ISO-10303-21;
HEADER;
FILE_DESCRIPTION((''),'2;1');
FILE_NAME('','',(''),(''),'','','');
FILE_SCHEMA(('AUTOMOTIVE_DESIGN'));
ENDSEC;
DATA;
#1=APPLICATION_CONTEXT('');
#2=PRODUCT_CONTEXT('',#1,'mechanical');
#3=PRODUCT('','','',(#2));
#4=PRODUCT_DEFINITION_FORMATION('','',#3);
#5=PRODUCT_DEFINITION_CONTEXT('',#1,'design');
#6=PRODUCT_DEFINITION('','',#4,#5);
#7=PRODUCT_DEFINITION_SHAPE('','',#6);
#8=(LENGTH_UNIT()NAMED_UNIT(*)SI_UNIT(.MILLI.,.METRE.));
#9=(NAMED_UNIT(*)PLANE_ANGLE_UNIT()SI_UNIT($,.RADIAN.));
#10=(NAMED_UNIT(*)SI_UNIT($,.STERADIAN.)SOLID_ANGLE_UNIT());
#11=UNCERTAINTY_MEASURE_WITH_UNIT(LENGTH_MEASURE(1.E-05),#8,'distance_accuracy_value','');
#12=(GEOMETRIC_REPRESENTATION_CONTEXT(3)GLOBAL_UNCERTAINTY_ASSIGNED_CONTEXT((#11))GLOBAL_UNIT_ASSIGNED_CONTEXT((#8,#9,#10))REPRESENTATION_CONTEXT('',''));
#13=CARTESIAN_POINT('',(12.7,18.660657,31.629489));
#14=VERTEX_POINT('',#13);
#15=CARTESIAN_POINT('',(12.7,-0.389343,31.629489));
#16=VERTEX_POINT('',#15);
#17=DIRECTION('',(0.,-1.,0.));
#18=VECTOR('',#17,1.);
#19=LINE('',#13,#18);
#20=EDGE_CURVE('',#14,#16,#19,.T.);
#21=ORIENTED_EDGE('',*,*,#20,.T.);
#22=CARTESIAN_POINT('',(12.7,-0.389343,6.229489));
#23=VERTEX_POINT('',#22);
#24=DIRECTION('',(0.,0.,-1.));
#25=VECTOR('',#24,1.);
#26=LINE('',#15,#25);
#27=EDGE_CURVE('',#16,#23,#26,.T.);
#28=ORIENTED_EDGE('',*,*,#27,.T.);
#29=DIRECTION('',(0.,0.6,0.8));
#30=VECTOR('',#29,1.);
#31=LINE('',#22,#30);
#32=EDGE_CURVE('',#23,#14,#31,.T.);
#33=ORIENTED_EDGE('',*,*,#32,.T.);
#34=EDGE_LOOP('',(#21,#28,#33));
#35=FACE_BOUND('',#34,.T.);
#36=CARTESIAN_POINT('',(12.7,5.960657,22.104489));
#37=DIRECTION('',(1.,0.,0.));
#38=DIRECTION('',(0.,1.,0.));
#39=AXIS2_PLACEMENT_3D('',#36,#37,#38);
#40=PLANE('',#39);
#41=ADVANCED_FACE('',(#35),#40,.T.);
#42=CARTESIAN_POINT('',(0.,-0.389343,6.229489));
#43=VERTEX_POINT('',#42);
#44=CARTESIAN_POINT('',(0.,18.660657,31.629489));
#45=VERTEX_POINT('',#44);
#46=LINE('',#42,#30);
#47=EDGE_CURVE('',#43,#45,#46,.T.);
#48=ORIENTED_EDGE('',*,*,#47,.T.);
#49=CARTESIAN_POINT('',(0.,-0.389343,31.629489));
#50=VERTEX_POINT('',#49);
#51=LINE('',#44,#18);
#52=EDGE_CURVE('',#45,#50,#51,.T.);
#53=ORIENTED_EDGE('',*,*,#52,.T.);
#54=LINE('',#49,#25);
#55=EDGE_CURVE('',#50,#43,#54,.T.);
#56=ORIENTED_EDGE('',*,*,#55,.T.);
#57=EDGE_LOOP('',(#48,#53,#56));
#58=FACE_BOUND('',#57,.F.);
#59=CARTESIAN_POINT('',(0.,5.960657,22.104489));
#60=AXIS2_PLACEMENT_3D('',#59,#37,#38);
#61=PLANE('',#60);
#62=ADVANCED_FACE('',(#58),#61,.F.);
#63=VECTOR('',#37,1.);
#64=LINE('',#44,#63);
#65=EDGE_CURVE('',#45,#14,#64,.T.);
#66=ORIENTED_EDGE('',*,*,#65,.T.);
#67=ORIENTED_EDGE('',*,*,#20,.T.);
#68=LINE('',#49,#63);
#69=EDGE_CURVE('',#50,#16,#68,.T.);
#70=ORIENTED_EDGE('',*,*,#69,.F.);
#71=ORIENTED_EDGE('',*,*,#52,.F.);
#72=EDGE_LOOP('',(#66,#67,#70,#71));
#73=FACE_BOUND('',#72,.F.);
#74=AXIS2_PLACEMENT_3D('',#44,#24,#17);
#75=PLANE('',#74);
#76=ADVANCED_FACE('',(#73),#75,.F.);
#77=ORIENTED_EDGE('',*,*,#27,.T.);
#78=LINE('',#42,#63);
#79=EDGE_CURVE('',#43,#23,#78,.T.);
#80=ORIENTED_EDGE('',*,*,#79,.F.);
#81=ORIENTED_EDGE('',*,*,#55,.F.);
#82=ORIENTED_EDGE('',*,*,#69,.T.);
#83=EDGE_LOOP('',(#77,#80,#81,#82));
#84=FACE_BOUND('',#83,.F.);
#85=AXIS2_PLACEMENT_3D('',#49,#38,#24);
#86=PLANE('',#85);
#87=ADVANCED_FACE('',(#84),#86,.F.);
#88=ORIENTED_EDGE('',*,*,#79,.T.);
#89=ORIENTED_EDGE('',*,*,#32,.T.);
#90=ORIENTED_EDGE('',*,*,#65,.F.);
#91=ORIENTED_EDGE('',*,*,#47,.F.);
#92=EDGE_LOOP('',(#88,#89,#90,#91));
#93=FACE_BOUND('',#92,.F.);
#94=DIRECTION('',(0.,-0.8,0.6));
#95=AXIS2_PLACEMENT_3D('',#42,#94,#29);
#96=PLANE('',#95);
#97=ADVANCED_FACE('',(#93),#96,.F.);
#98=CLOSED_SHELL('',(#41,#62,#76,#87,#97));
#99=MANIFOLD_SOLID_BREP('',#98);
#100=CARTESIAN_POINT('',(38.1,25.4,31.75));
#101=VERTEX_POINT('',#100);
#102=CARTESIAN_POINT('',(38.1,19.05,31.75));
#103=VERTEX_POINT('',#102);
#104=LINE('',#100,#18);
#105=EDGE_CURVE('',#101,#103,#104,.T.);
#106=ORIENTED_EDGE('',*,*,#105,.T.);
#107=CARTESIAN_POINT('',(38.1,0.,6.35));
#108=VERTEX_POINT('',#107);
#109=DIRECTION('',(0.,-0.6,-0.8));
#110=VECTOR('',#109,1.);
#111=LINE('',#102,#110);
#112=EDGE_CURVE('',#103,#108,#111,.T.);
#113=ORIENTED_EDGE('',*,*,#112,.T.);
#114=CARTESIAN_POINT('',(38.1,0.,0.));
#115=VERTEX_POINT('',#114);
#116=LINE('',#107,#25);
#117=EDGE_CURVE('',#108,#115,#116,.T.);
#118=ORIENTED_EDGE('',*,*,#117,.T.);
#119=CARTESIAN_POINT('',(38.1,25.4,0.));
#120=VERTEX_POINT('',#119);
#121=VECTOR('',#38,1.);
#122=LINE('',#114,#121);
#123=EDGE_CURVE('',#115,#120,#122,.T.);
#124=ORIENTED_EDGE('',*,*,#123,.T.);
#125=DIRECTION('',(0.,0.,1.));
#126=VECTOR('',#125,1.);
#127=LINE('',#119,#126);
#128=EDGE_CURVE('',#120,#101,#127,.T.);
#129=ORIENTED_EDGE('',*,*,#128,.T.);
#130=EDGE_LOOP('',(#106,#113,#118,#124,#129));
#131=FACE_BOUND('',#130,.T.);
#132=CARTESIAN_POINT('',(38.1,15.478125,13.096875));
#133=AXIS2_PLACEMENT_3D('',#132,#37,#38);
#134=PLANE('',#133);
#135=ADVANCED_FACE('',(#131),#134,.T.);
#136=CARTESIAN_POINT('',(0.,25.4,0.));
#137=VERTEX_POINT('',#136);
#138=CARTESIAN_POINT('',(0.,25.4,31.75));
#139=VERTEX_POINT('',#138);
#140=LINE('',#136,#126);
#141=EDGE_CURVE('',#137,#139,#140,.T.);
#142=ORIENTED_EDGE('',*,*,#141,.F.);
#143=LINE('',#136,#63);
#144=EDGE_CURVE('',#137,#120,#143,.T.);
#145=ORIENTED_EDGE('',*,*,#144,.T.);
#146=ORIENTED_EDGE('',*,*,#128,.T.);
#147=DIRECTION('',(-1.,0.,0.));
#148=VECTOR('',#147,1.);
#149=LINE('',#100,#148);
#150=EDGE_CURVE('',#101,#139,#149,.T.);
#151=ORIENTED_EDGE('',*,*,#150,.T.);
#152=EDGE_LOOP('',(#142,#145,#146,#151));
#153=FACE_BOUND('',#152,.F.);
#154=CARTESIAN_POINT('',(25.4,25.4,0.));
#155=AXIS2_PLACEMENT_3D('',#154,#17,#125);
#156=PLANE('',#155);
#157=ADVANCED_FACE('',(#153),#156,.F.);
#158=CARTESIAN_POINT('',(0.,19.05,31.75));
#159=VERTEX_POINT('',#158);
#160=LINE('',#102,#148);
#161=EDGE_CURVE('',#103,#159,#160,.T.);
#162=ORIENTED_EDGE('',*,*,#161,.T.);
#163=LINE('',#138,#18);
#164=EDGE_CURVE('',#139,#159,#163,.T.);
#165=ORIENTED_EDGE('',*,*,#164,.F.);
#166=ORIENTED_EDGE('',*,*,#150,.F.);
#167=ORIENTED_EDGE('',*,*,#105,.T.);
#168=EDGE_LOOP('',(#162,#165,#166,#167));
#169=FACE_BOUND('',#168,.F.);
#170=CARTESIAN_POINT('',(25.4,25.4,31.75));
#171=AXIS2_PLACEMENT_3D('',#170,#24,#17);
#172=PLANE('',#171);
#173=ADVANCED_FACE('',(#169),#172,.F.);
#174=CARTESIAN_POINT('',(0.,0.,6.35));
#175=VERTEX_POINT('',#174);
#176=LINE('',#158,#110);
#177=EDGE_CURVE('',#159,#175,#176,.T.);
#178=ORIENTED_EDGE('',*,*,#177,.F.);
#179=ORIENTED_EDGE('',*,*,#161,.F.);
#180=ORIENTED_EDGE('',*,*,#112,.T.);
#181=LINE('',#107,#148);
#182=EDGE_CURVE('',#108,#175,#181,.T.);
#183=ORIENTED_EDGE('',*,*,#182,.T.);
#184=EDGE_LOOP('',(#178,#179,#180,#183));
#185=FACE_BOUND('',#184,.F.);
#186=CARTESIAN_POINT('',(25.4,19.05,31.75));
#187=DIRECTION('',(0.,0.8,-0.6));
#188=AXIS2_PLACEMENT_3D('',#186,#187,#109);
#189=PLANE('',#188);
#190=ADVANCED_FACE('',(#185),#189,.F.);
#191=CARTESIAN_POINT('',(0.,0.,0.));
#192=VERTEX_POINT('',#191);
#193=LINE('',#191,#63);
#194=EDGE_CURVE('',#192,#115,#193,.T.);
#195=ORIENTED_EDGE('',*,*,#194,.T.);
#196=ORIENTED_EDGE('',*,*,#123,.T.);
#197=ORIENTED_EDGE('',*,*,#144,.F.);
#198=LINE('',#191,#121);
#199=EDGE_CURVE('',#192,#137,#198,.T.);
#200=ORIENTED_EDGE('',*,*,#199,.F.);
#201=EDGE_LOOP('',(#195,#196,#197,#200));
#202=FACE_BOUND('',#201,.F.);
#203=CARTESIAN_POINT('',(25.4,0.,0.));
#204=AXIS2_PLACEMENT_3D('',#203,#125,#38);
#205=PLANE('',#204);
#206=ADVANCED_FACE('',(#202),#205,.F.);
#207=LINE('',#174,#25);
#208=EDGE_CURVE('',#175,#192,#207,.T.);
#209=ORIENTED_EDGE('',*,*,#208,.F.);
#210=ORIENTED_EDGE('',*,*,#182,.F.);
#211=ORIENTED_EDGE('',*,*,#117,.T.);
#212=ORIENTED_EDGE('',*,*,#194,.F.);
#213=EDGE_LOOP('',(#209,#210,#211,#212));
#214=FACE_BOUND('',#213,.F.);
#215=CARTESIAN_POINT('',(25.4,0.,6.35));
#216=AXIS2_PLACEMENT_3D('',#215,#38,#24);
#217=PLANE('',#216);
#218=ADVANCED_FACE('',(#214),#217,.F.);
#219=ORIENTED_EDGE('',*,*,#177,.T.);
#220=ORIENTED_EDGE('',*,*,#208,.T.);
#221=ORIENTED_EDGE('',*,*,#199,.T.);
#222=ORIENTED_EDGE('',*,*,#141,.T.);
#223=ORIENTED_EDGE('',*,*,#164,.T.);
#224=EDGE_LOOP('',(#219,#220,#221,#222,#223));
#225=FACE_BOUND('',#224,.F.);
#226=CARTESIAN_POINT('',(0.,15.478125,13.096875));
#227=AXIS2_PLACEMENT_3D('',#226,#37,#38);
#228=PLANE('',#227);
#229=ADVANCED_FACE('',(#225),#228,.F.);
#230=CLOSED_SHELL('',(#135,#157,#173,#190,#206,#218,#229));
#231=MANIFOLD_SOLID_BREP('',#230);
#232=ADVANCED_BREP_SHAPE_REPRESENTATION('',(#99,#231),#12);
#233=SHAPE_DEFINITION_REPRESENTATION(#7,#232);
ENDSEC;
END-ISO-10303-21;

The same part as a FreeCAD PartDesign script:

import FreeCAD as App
import Part
import Sketcher

V = App.Vector
Q = App.Units.Quantity


def add_polygon(sketch, points):
    """Adds a closed chain of lines whose ends are joined by coincident constraints."""
    first, n = sketch.GeometryCount, len(points)
    for a, b in zip(points, points[1:] + points[:1]):
        sketch.addGeometry(Part.LineSegment(App.Vector(*a, 0), App.Vector(*b, 0)), False)
    for i in range(n):
        sketch.addConstraint(Sketcher.Constraint("Coincident", first + i, 2, first + (i + 1) % n, 1))

doc = App.newDocument("Part")
body = doc.addObject("PartDesign::Body", "Body")

sketch1 = body.newObject("Sketcher::SketchObject", "Sketch")
sketch1.AttachmentSupport = (doc.getObject("YZ_Plane"), [""])
sketch1.MapMode = "FlatFace"
add_polygon(sketch1, [(0, 6), (0, 0), (25, 0), (25, 32), (19, 32)])
sketch1.addConstraint(Sketcher.Constraint("Vertical", 0))
sketch1.addConstraint(Sketcher.Constraint("Horizontal", 1))
sketch1.addConstraint(Sketcher.Constraint("Vertical", 2))
sketch1.addConstraint(Sketcher.Constraint("Horizontal", 3))
sketch1.addConstraint(Sketcher.Constraint("Coincident", 0, 2, -1, 1))
sketch1.addConstraint(Sketcher.Constraint("Equal", 3, 0))
sketch1.addConstraint(Sketcher.Constraint("DistanceX", 1, 1, 1, 2, Q("1 in")))
sketch1.addConstraint(Sketcher.Constraint("DistanceY", 4, 2, 3, 2, Q("1 in")))
sketch1.addConstraint(Sketcher.Constraint("DistanceX", 3, 2, 3, 1, Q("0.25 in")))
pad1 = body.newObject("PartDesign::Pad", "Pad")
pad1.Profile = sketch1
pad1.Length = Q("1 in")

sketch2 = body.newObject("Sketcher::SketchObject", "Sketch001")
sketch2.AttachmentSupport = (doc.getObject("YZ_Plane"), [""])
sketch2.MapMode = "FlatFace"
sketch2.AttachmentOffset = App.Placement(V(0, 0, 1 * 25.4), App.Rotation())
add_polygon(sketch2, [(0, 6), (0, 0), (25, 0), (25, 32), (19, 32)])
sketch2.addConstraint(Sketcher.Constraint("Vertical", 0))
sketch2.addConstraint(Sketcher.Constraint("Horizontal", 1))
sketch2.addConstraint(Sketcher.Constraint("Vertical", 2))
sketch2.addConstraint(Sketcher.Constraint("Horizontal", 3))
sketch2.addConstraint(Sketcher.Constraint("Coincident", 0, 2, -1, 1))
sketch2.addConstraint(Sketcher.Constraint("Equal", 3, 0))
sketch2.addConstraint(Sketcher.Constraint("DistanceX", 1, 1, 1, 2, Q("1 in")))
sketch2.addConstraint(Sketcher.Constraint("DistanceY", 4, 2, 3, 2, Q("1 in")))
sketch2.addConstraint(Sketcher.Constraint("DistanceX", 3, 2, 3, 1, Q("0.25 in")))
pad2 = body.newObject("PartDesign::Pad", "Pad001")
pad2.Profile = sketch2
pad2.Length = Q("0.5 in")
body2 = doc.addObject("PartDesign::Body", "Body001")

sketch3 = body2.newObject("Sketcher::SketchObject", "Sketch002")
sketch3.AttachmentSupport = (doc.getObject("YZ_Plane001"), [""])
sketch3.MapMode = "FlatFace"
add_polygon(sketch3, [(0, 32), (0, 6), (19, 32)])
sketch3.addConstraint(Sketcher.Constraint("Vertical", 0))
sketch3.addConstraint(Sketcher.Constraint("Horizontal", 2))
sketch3.addConstraint(Sketcher.Constraint("DistanceY", 0, 2, 0, 1, Q("1 in")))
sketch3.addConstraint(Sketcher.Constraint("DistanceX", 2, 2, 2, 1, Q("0.75 in")))
sketch3.addConstraint(Sketcher.Constraint("DistanceY", -1, 1, 0, 2, Q("6.229489 mm")))
sketch3.addConstraint(Sketcher.Constraint("DistanceX", 0, 2, -1, 1, Q("0.389343 mm")))
pad3 = body2.newObject("PartDesign::Pad", "Pad002")
pad3.Profile = sketch3
pad3.Length = Q("0.5 in")

doc.recompute()
